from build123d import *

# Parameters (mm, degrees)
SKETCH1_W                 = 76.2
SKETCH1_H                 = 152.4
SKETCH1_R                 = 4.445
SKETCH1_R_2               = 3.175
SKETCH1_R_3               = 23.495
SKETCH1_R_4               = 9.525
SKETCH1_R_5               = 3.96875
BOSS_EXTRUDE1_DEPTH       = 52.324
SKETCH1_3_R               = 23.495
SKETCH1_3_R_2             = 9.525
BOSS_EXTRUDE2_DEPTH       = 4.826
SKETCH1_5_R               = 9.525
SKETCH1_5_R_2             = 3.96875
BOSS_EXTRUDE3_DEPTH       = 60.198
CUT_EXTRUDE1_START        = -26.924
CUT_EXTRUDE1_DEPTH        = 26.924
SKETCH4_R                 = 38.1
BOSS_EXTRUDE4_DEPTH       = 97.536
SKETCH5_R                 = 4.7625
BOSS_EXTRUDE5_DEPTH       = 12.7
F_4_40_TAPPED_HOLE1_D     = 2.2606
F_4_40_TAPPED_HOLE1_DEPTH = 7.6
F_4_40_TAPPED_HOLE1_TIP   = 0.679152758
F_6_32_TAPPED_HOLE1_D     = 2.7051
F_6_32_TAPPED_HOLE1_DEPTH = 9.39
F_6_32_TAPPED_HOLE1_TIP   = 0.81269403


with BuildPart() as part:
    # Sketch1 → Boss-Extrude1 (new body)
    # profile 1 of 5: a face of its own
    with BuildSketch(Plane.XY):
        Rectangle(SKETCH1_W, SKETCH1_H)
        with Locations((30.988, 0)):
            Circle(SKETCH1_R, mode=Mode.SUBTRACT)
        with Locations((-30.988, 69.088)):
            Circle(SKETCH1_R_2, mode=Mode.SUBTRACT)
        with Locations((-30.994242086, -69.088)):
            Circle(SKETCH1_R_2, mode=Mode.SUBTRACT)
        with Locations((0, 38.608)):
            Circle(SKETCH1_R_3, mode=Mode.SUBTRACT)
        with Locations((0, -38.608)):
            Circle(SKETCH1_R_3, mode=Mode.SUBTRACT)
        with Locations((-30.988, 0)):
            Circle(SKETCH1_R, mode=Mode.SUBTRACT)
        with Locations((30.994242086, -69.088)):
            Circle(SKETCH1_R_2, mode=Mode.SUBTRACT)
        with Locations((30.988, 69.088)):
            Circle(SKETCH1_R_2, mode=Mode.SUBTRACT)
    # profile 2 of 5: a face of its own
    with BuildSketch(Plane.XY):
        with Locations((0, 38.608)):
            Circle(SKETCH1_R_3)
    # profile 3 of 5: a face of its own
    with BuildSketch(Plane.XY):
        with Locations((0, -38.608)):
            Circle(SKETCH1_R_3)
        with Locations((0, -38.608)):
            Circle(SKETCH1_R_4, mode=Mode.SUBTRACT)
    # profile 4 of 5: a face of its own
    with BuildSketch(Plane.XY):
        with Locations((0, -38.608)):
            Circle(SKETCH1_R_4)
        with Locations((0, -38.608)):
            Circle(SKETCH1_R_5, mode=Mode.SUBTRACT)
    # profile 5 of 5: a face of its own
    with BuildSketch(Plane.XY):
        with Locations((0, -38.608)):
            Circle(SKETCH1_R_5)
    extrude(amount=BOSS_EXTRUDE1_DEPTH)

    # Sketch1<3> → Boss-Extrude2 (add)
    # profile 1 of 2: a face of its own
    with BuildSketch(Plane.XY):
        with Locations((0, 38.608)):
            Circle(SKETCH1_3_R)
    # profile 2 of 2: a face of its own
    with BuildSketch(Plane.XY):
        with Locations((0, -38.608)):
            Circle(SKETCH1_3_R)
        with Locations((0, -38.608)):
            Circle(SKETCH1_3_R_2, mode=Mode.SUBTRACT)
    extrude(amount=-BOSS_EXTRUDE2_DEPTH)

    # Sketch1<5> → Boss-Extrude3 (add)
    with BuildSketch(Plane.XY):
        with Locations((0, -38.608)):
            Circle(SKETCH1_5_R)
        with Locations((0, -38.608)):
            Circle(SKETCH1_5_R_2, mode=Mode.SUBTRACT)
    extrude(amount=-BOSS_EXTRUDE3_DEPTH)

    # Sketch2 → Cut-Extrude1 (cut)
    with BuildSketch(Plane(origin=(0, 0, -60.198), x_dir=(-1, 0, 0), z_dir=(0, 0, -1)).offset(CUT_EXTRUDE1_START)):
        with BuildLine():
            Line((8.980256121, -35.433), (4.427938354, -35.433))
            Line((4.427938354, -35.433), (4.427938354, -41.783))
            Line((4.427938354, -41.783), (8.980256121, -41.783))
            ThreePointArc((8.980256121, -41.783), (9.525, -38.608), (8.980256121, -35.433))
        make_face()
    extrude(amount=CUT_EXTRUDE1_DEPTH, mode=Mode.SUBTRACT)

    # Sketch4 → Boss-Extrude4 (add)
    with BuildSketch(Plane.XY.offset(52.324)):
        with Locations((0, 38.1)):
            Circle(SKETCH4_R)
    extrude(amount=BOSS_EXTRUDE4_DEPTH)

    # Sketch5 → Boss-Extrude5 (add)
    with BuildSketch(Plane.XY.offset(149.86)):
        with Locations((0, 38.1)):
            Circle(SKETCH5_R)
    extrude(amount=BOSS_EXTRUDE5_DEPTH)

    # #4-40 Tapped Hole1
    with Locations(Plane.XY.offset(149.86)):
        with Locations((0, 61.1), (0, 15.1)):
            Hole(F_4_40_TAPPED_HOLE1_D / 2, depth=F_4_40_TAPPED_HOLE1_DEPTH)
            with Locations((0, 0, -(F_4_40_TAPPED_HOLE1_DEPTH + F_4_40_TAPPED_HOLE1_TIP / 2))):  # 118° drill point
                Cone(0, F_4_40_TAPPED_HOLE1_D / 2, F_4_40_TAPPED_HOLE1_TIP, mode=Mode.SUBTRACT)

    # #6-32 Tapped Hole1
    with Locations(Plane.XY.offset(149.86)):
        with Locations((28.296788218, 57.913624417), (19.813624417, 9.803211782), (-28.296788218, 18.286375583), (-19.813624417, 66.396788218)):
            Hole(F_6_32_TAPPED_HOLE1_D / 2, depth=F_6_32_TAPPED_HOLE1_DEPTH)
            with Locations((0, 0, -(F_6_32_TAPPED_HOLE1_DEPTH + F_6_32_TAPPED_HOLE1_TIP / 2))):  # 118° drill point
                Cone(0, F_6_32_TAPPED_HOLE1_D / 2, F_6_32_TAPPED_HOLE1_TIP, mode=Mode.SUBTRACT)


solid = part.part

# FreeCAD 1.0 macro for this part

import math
import FreeCAD as App
import Part
import Sketcher
Q = App.Units.Quantity


def add_polygon(sketch, points):
    """Adds a closed chain of lines whose ends are joined by coincident constraints."""
    first, n = sketch.GeometryCount, len(points)
    for a, b in zip(points, points[1:] + points[:1]):
        sketch.addGeometry(Part.LineSegment(App.Vector(*a, 0), App.Vector(*b, 0)), False)
    for i in range(n):
        sketch.addConstraint(Sketcher.Constraint("Coincident", first + i, 2, first + (i + 1) % n, 1))

doc = App.newDocument("Part")
params = doc.addObject("Spreadsheet::Sheet", "Params")
for row, (alias, value) in enumerate([
    ("sketch1_diameter", "0.25 in"),
    ("sketch1_diameter2", "0.35 in"),
    ("sketch1_width", "3 in"),
    ("sketch1_height", "6 in"),
    ("pad1_length", "2.06 in"),
    ("sketch2_diameter", "1.85 in"),
    ("sketch2_diameter2", "0.75 in"),
    ("pad2_length", "0.19 in"),
    ("sketch3_diameter", "0.75 in"),
    ("sketch3_diameter2", "0.3125 in"),
    ("pad3_length", "2.37 in"),
    ("sketch4_radius", "0.375 in"),
    ("sketch4_height", "0.25 in"),
    ("pocket1_length", "1.06 in"),
    ("sketch5_diameter", "3 in"),
    ("pad4_length", "3.84 in"),
    ("sketch6_diameter", "0.375 in"),
    ("pad5_length", "0.5 in"),
    ("sketch7_diameter", "0.089 in"),
    ("hole_diameter", "0.089 in"),
    ("hole_depth", "7.6 mm"),
    ("hole2_diameter", "0.1065 in"),
    ("hole2_depth", "9.39 mm"),
], start=1):
    params.set(f"A{row}", alias)
    params.set(f"B{row}", "=" + value)
    params.setAlias(f"B{row}", alias)

body = doc.addObject("PartDesign::Body", "Body")

sketch1 = body.newObject("Sketcher::SketchObject", "Sketch")
sketch1.AttachmentSupport = (doc.getObject("XY_Plane"), [""])
sketch1.MapMode = "FlatFace"
add_polygon(sketch1, [(-38.1, 76.2), (-38.1, -76.2), (38.1, -76.2), (38.1, 76.2)])
sketch1.addGeometry(Part.Circle(App.Vector(-31, -69.1, 0), App.Vector(0, 0, 1), 3.2), False)
sketch1.addGeometry(Part.Circle(App.Vector(31, -69.1, 0), App.Vector(0, 0, 1), 3.2), False)
sketch1.addGeometry(Part.Circle(App.Vector(-31, 0, 0), App.Vector(0, 0, 1), 4.4), False)
sketch1.addGeometry(Part.Circle(App.Vector(-31, 69.1, 0), App.Vector(0, 0, 1), 3.2), False)
sketch1.addGeometry(Part.Circle(App.Vector(31, 0, 0), App.Vector(0, 0, 1), 4.4), False)
sketch1.addGeometry(Part.Circle(App.Vector(31, 69.1, 0), App.Vector(0, 0, 1), 3.2), False)
sketch1.addConstraint(Sketcher.Constraint("Vertical", 0))
sketch1.addConstraint(Sketcher.Constraint("Horizontal", 1))
sketch1.addConstraint(Sketcher.Constraint("Vertical", 2))
sketch1.addConstraint(Sketcher.Constraint("Horizontal", 3))
sketch1.addConstraint(Sketcher.Constraint("Equal", 4, 5))
sketch1.addConstraint(Sketcher.Constraint("Equal", 5, 7))
sketch1.addConstraint(Sketcher.Constraint("Equal", 6, 8))
sketch1.addConstraint(Sketcher.Constraint("Equal", 7, 9))
sketch1.addConstraint(Sketcher.Constraint("Symmetric", 6, 3, 8, 3, -1, 1))
sketch1.addConstraint(Sketcher.Constraint("Symmetric", 0, 2, 2, 2, -1, 1))
sketch1.addConstraint(Sketcher.Constraint("Symmetric", 4, 3, 5, 3, -2))
sketch1.addConstraint(Sketcher.Constraint("Symmetric", 7, 3, 9, 3, -2))
sketch1.addConstraint(Sketcher.Constraint("PointOnObject", 6, 3, -1))
sketch1.addConstraint(Sketcher.Constraint("Vertical", 6, 3, 7, 3))
sketch1.addConstraint(Sketcher.Constraint("Diameter", 4, Q("0.25 in")))
sketch1.addConstraint(Sketcher.Constraint("Diameter", 6, Q("0.35 in")))
sketch1.addConstraint(Sketcher.Constraint("DistanceX", 1, 1, 1, 2, Q("3 in")))
sketch1.addConstraint(Sketcher.Constraint("DistanceY", 0, 2, 0, 1, Q("6 in")))
sketch1.addConstraint(Sketcher.Constraint("DistanceY", 4, 3, -1, 1, Q("2.72 in")))
sketch1.addConstraint(Sketcher.Constraint("DistanceX", 6, 3, -1, 1, Q("1.22 in")))
sketch1.addConstraint(Sketcher.Constraint("DistanceY", -1, 1, 7, 3, Q("2.72 in")))
sketch1.addConstraint(Sketcher.Constraint("DistanceX", 4, 3, -1, 1, 30.994242))
sketch1.setExpression("Constraints[18]", "Params.sketch1_diameter")
sketch1.setExpression("Constraints[19]", "Params.sketch1_diameter2")
sketch1.setExpression("Constraints[20]", "Params.sketch1_width")
sketch1.setExpression("Constraints[21]", "Params.sketch1_height")
pad1 = body.newObject("PartDesign::Pad", "Pad")
pad1.Profile = sketch1
pad1.setExpression("Length", "Params.pad1_length")

sketch2 = body.newObject("Sketcher::SketchObject", "Sketch001")
sketch2.AttachmentSupport = (doc.getObject("XY_Plane"), [""])
sketch2.MapMode = "FlatFace"
sketch2.addGeometry(Part.Circle(App.Vector(0, 39, 0), App.Vector(0, 0, 1), 23), False)
sketch2.addGeometry(Part.Circle(App.Vector(0, -39, 0), App.Vector(0, 0, 1), 23), False)
sketch2.addGeometry(Part.Circle(App.Vector(0, -39, 0), App.Vector(0, 0, 1), 10), False)
sketch2.addConstraint(Sketcher.Constraint("Coincident", 2, 3, 1, 3))
sketch2.addConstraint(Sketcher.Constraint("Equal", 0, 1))
sketch2.addConstraint(Sketcher.Constraint("Symmetric", 0, 3, 1, 3, -1, 1))
sketch2.addConstraint(Sketcher.Constraint("PointOnObject", 0, 3, -2))
sketch2.addConstraint(Sketcher.Constraint("Diameter", 0, Q("1.85 in")))
sketch2.addConstraint(Sketcher.Constraint("Diameter", 2, Q("0.75 in")))
sketch2.addConstraint(Sketcher.Constraint("DistanceY", -1, 1, 0, 3, Q("1.52 in")))
sketch2.setExpression("Constraints[4]", "Params.sketch2_diameter")
sketch2.setExpression("Constraints[5]", "Params.sketch2_diameter2")
pad2 = body.newObject("PartDesign::Pad", "Pad001")
pad2.Profile = sketch2
pad2.setExpression("Length", "Params.pad2_length")
pad2.Reversed = True

sketch3 = body.newObject("Sketcher::SketchObject", "Sketch002")
sketch3.AttachmentSupport = (doc.getObject("XY_Plane"), [""])
sketch3.MapMode = "FlatFace"
sketch3.addGeometry(Part.Circle(App.Vector(0, -38.6, 0), App.Vector(0, 0, 1), 9.5), False)
sketch3.addGeometry(Part.Circle(App.Vector(0, -38.6, 0), App.Vector(0, 0, 1), 4), False)
sketch3.addConstraint(Sketcher.Constraint("Coincident", 1, 3, 0, 3))
sketch3.addConstraint(Sketcher.Constraint("PointOnObject", 0, 3, -2))
sketch3.addConstraint(Sketcher.Constraint("Diameter", 0, Q("0.75 in")))
sketch3.addConstraint(Sketcher.Constraint("Diameter", 1, Q("0.3125 in")))
sketch3.addConstraint(Sketcher.Constraint("DistanceY", 0, 3, -1, 1, Q("1.52 in")))
sketch3.setExpression("Constraints[2]", "Params.sketch3_diameter")
sketch3.setExpression("Constraints[3]", "Params.sketch3_diameter2")
pad3 = body.newObject("PartDesign::Pad", "Pad002")
pad3.Profile = sketch3
pad3.setExpression("Length", "Params.pad3_length")
pad3.Reversed = True

sketch4 = body.newObject("Sketcher::SketchObject", "Sketch003")
sketch4.AttachmentSupport = (doc.getObject("XY_Plane"), [""])
sketch4.MapMode = "FlatFace"
sketch4.AttachmentOffset = App.Placement(App.Vector(0, 0, -1.31 * 25.4), App.Rotation())
sketch4.addGeometry(Part.LineSegment(App.Vector(-9, -35.4, 0), App.Vector(-4.4, -35.4, 0)), False)
sketch4.addGeometry(Part.LineSegment(App.Vector(-4.4, -35.4, 0), App.Vector(-4.4, -41.8, 0)), False)
sketch4.addGeometry(Part.LineSegment(App.Vector(-4.4, -41.8, 0), App.Vector(-9, -41.8, 0)), False)
sketch4.addGeometry(Part.ArcOfCircle(Part.Circle(App.Vector(0, -38.6, 0), App.Vector(0, 0, 1), 9.5), math.radians(161), math.radians(199)), False)
sketch4.addConstraint(Sketcher.Constraint("Coincident", 0, 2, 1, 1))
sketch4.addConstraint(Sketcher.Constraint("Coincident", 1, 2, 2, 1))
sketch4.addConstraint(Sketcher.Constraint("Coincident", 2, 2, 3, 2))
sketch4.addConstraint(Sketcher.Constraint("Coincident", 3, 1, 0, 1))
sketch4.addConstraint(Sketcher.Constraint("Horizontal", 0))
sketch4.addConstraint(Sketcher.Constraint("Vertical", 1))
sketch4.addConstraint(Sketcher.Constraint("Horizontal", 2))
sketch4.addConstraint(Sketcher.Constraint("PointOnObject", 3, 3, -2))
sketch4.addConstraint(Sketcher.Constraint("Vertical", 2, 2, 3, 1))
sketch4.addConstraint(Sketcher.Constraint("Radius", 3, Q("0.375 in")))
sketch4.addConstraint(Sketcher.Constraint("DistanceY", 1, 2, 1, 1, Q("0.25 in")))
sketch4.addConstraint(Sketcher.Constraint("DistanceY", 3, 3, -1, 1, Q("1.52 in")))
sketch4.addConstraint(Sketcher.Constraint("DistanceX", 0, 1, 0, 2, 4.552318))
sketch4.setExpression("Constraints[9]", "Params.sketch4_radius")
sketch4.setExpression("Constraints[10]", "Params.sketch4_height")
pocket1 = body.newObject("PartDesign::Pocket", "Pocket")
pocket1.Profile = sketch4
pocket1.setExpression("Length", "Params.pocket1_length")

sketch5 = body.newObject("Sketcher::SketchObject", "Sketch004")
sketch5.AttachmentSupport = (doc.getObject("XY_Plane"), [""])
sketch5.MapMode = "FlatFace"
sketch5.AttachmentOffset = App.Placement(App.Vector(0, 0, 2.06 * 25.4), App.Rotation())
sketch5.addGeometry(Part.Circle(App.Vector(0, 38, 0), App.Vector(0, 0, 1), 38), False)
sketch5.addConstraint(Sketcher.Constraint("PointOnObject", 0, 3, -2))
sketch5.addConstraint(Sketcher.Constraint("Diameter", 0, Q("3 in")))
sketch5.addConstraint(Sketcher.Constraint("DistanceY", -1, 1, 0, 3, Q("1.5 in")))
sketch5.setExpression("Constraints[1]", "Params.sketch5_diameter")
pad4 = body.newObject("PartDesign::Pad", "Pad003")
pad4.Profile = sketch5
pad4.setExpression("Length", "Params.pad4_length")

sketch6 = body.newObject("Sketcher::SketchObject", "Sketch005")
sketch6.AttachmentSupport = (doc.getObject("XY_Plane"), [""])
sketch6.MapMode = "FlatFace"
sketch6.AttachmentOffset = App.Placement(App.Vector(0, 0, 5.9 * 25.4), App.Rotation())
sketch6.addGeometry(Part.Circle(App.Vector(0, 38.1, 0), App.Vector(0, 0, 1), 4.8), False)
sketch6.addConstraint(Sketcher.Constraint("PointOnObject", 0, 3, -2))
sketch6.addConstraint(Sketcher.Constraint("Diameter", 0, Q("0.375 in")))
sketch6.addConstraint(Sketcher.Constraint("DistanceY", -1, 1, 0, 3, Q("1.5 in")))
sketch6.setExpression("Constraints[1]", "Params.sketch6_diameter")
pad5 = body.newObject("PartDesign::Pad", "Pad004")
pad5.Profile = sketch6
pad5.setExpression("Length", "Params.pad5_length")

sketch7 = body.newObject("Sketcher::SketchObject", "Sketch006")
sketch7.AttachmentSupport = (doc.getObject("XY_Plane"), [""])
sketch7.MapMode = "FlatFace"
sketch7.AttachmentOffset = App.Placement(App.Vector(0, 0, 5.9 * 25.4), App.Rotation())
sketch7.addGeometry(Part.Circle(App.Vector(0, 61.1, 0), App.Vector(0, 0, 1), 1.1), False)
sketch7.addGeometry(Part.Circle(App.Vector(0, 15.1, 0), App.Vector(0, 0, 1), 1.1), False)
sketch7.addConstraint(Sketcher.Constraint("Equal", 0, 1))
sketch7.addConstraint(Sketcher.Constraint("PointOnObject", 0, 3, -2))
sketch7.addConstraint(Sketcher.Constraint("PointOnObject", 1, 3, -2))
sketch7.addConstraint(Sketcher.Constraint("Diameter", 0, Q("0.089 in")))
sketch7.addConstraint(Sketcher.Constraint("DistanceY", -1, 1, 0, 3, 61.1))
sketch7.addConstraint(Sketcher.Constraint("DistanceY", -1, 1, 1, 3, 15.1))
sketch7.setExpression("Constraints[3]", "Params.sketch7_diameter")
doc.recompute()
hole = body.newObject("PartDesign::Hole", "Hole")
hole.Profile = sketch7
hole.ThreadType = "None"
hole.setExpression("Diameter", "Params.hole_diameter")
hole.DepthType = "Dimension"
hole.setExpression("Depth", "Params.hole_depth")
hole.DrillPoint = "Angled"
hole.DrillPointAngle = 118

sketch8 = body.newObject("Sketcher::SketchObject", "Sketch007")
sketch8.AttachmentSupport = (doc.getObject("XY_Plane"), [""])
sketch8.MapMode = "FlatFace"
sketch8.AttachmentOffset = App.Placement(App.Vector(0, 0, 5.9 * 25.4), App.Rotation())
sketch8.addGeometry(Part.Circle(App.Vector(28.3, 57.9, 0), App.Vector(0, 0, 1), 1.4), False)
sketch8.addGeometry(Part.Circle(App.Vector(19.8, 9.8, 0), App.Vector(0, 0, 1), 1.4), False)
sketch8.addGeometry(Part.Circle(App.Vector(-28.3, 18.3, 0), App.Vector(0, 0, 1), 1.4), False)
sketch8.addGeometry(Part.Circle(App.Vector(-19.8, 66.4, 0), App.Vector(0, 0, 1), 1.4), False)
sketch8.addConstraint(Sketcher.Constraint("Equal", 0, 1))
sketch8.addConstraint(Sketcher.Constraint("Equal", 1, 2))
sketch8.addConstraint(Sketcher.Constraint("Equal", 2, 3))
sketch8.addConstraint(Sketcher.Constraint("Diameter", 0, Q("0.1065 in")))
sketch8.addConstraint(Sketcher.Constraint("DistanceX", -1, 1, 0, 3, 28.296788))
sketch8.addConstraint(Sketcher.Constraint("DistanceY", -1, 1, 1, 3, 9.803212))
sketch8.addConstraint(Sketcher.Constraint("DistanceX", 2, 3, -1, 1, 28.296788))
sketch8.addConstraint(Sketcher.Constraint("DistanceY", -1, 1, 3, 3, 66.396788))
sketch8.addConstraint(Sketcher.Constraint("DistanceY", 2, 3, 0, 3, 39.627249))
sketch8.addConstraint(Sketcher.Constraint("DistanceX", 3, 3, 1, 3, 39.627249))
sketch8.addConstraint(Sketcher.Constraint("DistanceY", -1, 1, 0, 3, 57.913624))
sketch8.addConstraint(Sketcher.Constraint("DistanceX", -1, 1, 1, 3, 19.813624))
doc.recompute()
hole2 = body.newObject("PartDesign::Hole", "Hole001")
hole2.Profile = sketch8
hole2.ThreadType = "None"
hole2.setExpression("Diameter", "Params.hole2_diameter")
hole2.DepthType = "Dimension"
hole2.setExpression("Depth", "Params.hole2_depth")
hole2.DrillPoint = "Angled"
hole2.DrillPointAngle = 118

doc.recompute()
